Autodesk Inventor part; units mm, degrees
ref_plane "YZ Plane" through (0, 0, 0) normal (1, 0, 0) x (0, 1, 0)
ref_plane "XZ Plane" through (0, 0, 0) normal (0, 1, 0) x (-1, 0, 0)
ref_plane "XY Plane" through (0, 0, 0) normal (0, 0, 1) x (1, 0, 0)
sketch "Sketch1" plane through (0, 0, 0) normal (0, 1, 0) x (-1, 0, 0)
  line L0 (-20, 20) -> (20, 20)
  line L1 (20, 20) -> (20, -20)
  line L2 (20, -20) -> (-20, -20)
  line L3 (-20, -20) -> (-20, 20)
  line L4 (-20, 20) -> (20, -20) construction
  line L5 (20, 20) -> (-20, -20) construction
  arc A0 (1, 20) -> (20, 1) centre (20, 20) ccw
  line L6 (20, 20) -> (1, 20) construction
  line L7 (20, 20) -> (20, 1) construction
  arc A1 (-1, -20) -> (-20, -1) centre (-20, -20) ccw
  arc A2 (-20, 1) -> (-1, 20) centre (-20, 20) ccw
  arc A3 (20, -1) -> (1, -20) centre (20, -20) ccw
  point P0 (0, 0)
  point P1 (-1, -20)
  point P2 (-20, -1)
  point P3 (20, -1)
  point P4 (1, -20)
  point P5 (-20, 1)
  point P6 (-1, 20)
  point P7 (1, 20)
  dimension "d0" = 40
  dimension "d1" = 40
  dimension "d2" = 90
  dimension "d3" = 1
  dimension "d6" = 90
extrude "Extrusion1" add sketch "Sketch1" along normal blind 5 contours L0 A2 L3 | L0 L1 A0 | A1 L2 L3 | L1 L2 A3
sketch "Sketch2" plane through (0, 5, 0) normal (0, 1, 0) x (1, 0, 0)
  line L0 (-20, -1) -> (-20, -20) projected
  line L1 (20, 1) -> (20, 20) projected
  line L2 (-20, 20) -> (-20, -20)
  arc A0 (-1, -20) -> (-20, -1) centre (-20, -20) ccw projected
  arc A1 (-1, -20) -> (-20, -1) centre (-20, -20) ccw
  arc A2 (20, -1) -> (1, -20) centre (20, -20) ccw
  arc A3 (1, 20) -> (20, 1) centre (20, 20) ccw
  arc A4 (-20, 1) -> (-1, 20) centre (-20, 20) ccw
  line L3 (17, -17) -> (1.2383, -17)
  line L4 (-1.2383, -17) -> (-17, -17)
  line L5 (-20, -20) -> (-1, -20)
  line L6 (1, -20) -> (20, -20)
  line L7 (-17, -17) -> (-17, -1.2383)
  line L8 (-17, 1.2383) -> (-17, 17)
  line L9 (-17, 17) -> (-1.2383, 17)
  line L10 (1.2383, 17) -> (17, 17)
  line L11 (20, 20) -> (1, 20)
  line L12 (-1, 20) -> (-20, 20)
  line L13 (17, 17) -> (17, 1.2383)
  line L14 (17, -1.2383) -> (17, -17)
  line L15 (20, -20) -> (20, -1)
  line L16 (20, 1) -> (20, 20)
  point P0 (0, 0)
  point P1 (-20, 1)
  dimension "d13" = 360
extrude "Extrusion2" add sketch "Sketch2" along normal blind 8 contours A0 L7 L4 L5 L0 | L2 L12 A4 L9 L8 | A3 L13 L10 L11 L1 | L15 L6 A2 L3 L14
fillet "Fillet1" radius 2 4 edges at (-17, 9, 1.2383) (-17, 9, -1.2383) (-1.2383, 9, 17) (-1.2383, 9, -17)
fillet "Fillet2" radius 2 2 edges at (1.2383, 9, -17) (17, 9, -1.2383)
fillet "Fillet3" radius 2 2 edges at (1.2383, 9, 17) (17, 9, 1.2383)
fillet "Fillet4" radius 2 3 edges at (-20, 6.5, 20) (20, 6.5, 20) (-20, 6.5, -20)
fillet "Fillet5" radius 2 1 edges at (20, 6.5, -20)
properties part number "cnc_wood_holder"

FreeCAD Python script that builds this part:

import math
import FreeCAD as App
import Part
import Sketcher

V = App.Vector


def edges_at(feature, points):
    """Names of the edges that pass closest to the given points."""
    edges = feature.Shape.Edges
    near = lambda p: min(range(len(edges)), key=lambda i: edges[i].distToShape(Part.Vertex(*p))[0])
    return sorted({f"Edge{near(p) + 1}" for p in points})

doc = App.newDocument("Part")
body = doc.addObject("PartDesign::Body", "Body")
body.AllowCompound = True

# Sketch on XZ plane
sketch1 = doc.addObject("Sketcher::SketchObject", "Sketch")
body.addObject(sketch1)
sketch1.AttachmentSupport = (doc.XZ_Plane, [""])
sketch1.MapMode = "FlatFace"
sketch1.addGeometry([
    Part.LineSegment(V(1, 20, 0), V(20, 20, 0)),  # 0
    Part.LineSegment(V(20, 20, 0), V(20, 1, 0)),  # 1
    Part.ArcOfCircle(Part.Circle(V(20, 20, 0), V(0, 0, 1), 19), math.radians(180), math.radians(270)),  # 2
    Part.LineSegment(V(-20, 20, 0), V(-1, 20, 0)),  # 3
    Part.ArcOfCircle(Part.Circle(V(-20, 20, 0), V(0, 0, 1), 19), math.radians(-90), math.radians(0)),  # 4
    Part.LineSegment(V(-20, 1, 0), V(-20, 20, 0)),  # 5
    Part.ArcOfCircle(Part.Circle(V(20, -20, 0), V(0, 0, 1), 19), math.radians(90), math.radians(180)),  # 6
    Part.LineSegment(V(20, -1, 0), V(20, -20, 0)),  # 7
    Part.LineSegment(V(20, -20, 0), V(1, -20, 0)),  # 8
    Part.LineSegment(V(-20, -20, 0), V(-20, -1, 0)),  # 9
    Part.ArcOfCircle(Part.Circle(V(-20, -20, 0), V(0, 0, 1), 19), math.radians(0), math.radians(90)),  # 10
    Part.LineSegment(V(-1, -20, 0), V(-20, -20, 0)),  # 11
], False)
sketch1.addConstraint([
    Sketcher.Constraint("Coincident", 0, 2, 1, 1),
    Sketcher.Constraint("Coincident", 1, 2, 2, 2),
    Sketcher.Constraint("Coincident", 2, 1, 0, 1),
    Sketcher.Constraint("Coincident", 3, 2, 4, 2),
    Sketcher.Constraint("Coincident", 4, 1, 5, 1),
    Sketcher.Constraint("Coincident", 5, 2, 3, 1),
    Sketcher.Constraint("Coincident", 6, 1, 7, 1),
    Sketcher.Constraint("Coincident", 7, 2, 8, 1),
    Sketcher.Constraint("Coincident", 8, 2, 6, 2),
    Sketcher.Constraint("Coincident", 9, 2, 10, 2),
    Sketcher.Constraint("Coincident", 10, 1, 11, 1),
    Sketcher.Constraint("Coincident", 11, 2, 9, 1),
    Sketcher.Constraint("Horizontal", 0),
    Sketcher.Constraint("Vertical", 1),
    Sketcher.Constraint("Horizontal", 3),
    Sketcher.Constraint("Vertical", 5),
    Sketcher.Constraint("Vertical", 7),
    Sketcher.Constraint("Horizontal", 8),
    Sketcher.Constraint("Vertical", 9),
    Sketcher.Constraint("Horizontal", 11),
    Sketcher.Constraint("Coincident", 0, 2, 2, 3),
    Sketcher.Constraint("Coincident", 5, 2, 4, 3),
    Sketcher.Constraint("Coincident", 7, 2, 6, 3),
    Sketcher.Constraint("Coincident", 11, 2, 10, 3),
    Sketcher.Constraint("Equal", 2, 4),
    Sketcher.Constraint("Equal", 4, 6),
    Sketcher.Constraint("Equal", 6, 10),
    Sketcher.Constraint("Symmetric", 4, 3, 6, 3, -1, 1),
    Sketcher.Constraint("Symmetric", 2, 3, 10, 3, -1, 1),
    Sketcher.Constraint("Symmetric", 2, 3, 4, 3, -2),
    Sketcher.Constraint("DistanceY", -1, 1, 1, 2, 1.0),
    Sketcher.Constraint("DistanceX", -1, 1, 2, 1, 1.0),
    Sketcher.Constraint("Radius", 2, 19.0),
])
pad1 = doc.addObject("PartDesign::Pad", "Pad")
body.addObject(pad1)
pad1.Profile = sketch1
pad1.Length = 5
pad1.Reversed = True

# Sketch on XZ plane
sketch2 = doc.addObject("Sketcher::SketchObject", "Sketch001")
body.addObject(sketch2)
sketch2.AttachmentSupport = (doc.XZ_Plane, [""])
sketch2.MapMode = "FlatFace"
sketch2.AttachmentOffset = App.Placement(V(0, 0, -5), App.Rotation())
sketch2.addGeometry([
    Part.ArcOfCircle(Part.Circle(V(-20, 20, 0), V(0, 0, 1), 19), math.radians(-90), math.radians(-80.92)),  # 0
    Part.LineSegment(V(-20, 1, 0), V(-20, 20, 0)),  # 1
    Part.LineSegment(V(-20, 20, 0), V(-1, 20, 0)),  # 2
    Part.ArcOfCircle(Part.Circle(V(-20, 20, 0), V(0, 0, 1), 19), math.radians(-9.08), math.radians(0)),  # 3
    Part.LineSegment(V(-1.2, 17, 0), V(-17, 17, 0)),  # 4
    Part.LineSegment(V(-17, 17, 0), V(-17, 1.2, 0)),  # 5
    Part.LineSegment(V(-20, -20, 0), V(-20, -1, 0)),  # 6
    Part.ArcOfCircle(Part.Circle(V(-20, -20, 0), V(0, 0, 1), 19), math.radians(80.92), math.radians(90)),  # 7
    Part.LineSegment(V(-17, -1.2, 0), V(-17, -17, 0)),  # 8
    Part.LineSegment(V(-17, -17, 0), V(-1.2, -17, 0)),  # 9
    Part.ArcOfCircle(Part.Circle(V(-20, -20, 0), V(0, 0, 1), 19), math.radians(0), math.radians(9.08)),  # 10
    Part.LineSegment(V(-1, -20, 0), V(-20, -20, 0)),  # 11
    Part.ArcOfCircle(Part.Circle(V(20, -20, 0), V(0, 0, 1), 19), math.radians(90), math.radians(99.08)),  # 12
    Part.LineSegment(V(20, -1, 0), V(20, -20, 0)),  # 13
    Part.LineSegment(V(20, -20, 0), V(1, -20, 0)),  # 14
    Part.ArcOfCircle(Part.Circle(V(20, -20, 0), V(0, 0, 1), 19), math.radians(170.92), math.radians(180)),  # 15
    Part.LineSegment(V(1.2, -17, 0), V(17, -17, 0)),  # 16
    Part.LineSegment(V(17, -17, 0), V(17, -1.2, 0)),  # 17
    Part.LineSegment(V(20, 20, 0), V(20, 1, 0)),  # 18
    Part.ArcOfCircle(Part.Circle(V(20, 20, 0), V(0, 0, 1), 19), math.radians(-99.08), math.radians(-90)),  # 19
    Part.LineSegment(V(17, 1.2, 0), V(17, 17, 0)),  # 20
    Part.LineSegment(V(17, 17, 0), V(1.2, 17, 0)),  # 21
    Part.ArcOfCircle(Part.Circle(V(20, 20, 0), V(0, 0, 1), 19), math.radians(180), math.radians(189.08)),  # 22
    Part.LineSegment(V(1, 20, 0), V(20, 20, 0)),  # 23
], False)
sketch2.addConstraint([
    Sketcher.Constraint("Coincident", 0, 1, 1, 1),
    Sketcher.Constraint("Coincident", 1, 2, 2, 1),
    Sketcher.Constraint("Coincident", 2, 2, 3, 2),
    Sketcher.Constraint("Coincident", 3, 1, 4, 1),
    Sketcher.Constraint("Coincident", 4, 2, 5, 1),
    Sketcher.Constraint("Coincident", 5, 2, 0, 2),
    Sketcher.Constraint("Coincident", 6, 2, 7, 2),
    Sketcher.Constraint("Coincident", 7, 1, 8, 1),
    Sketcher.Constraint("Coincident", 8, 2, 9, 1),
    Sketcher.Constraint("Coincident", 9, 2, 10, 2),
    Sketcher.Constraint("Coincident", 10, 1, 11, 1),
    Sketcher.Constraint("Coincident", 11, 2, 6, 1),
    Sketcher.Constraint("Coincident", 12, 1, 13, 1),
    Sketcher.Constraint("Coincident", 13, 2, 14, 1),
    Sketcher.Constraint("Coincident", 14, 2, 15, 2),
    Sketcher.Constraint("Coincident", 15, 1, 16, 1),
    Sketcher.Constraint("Coincident", 16, 2, 17, 1),
    Sketcher.Constraint("Coincident", 17, 2, 12, 2),
    Sketcher.Constraint("Coincident", 18, 2, 19, 2),
    Sketcher.Constraint("Coincident", 19, 1, 20, 1),
    Sketcher.Constraint("Coincident", 20, 2, 21, 1),
    Sketcher.Constraint("Coincident", 21, 2, 22, 2),
    Sketcher.Constraint("Coincident", 22, 1, 23, 1),
    Sketcher.Constraint("Coincident", 23, 2, 18, 1),
    Sketcher.Constraint("Vertical", 1),
    Sketcher.Constraint("Horizontal", 2),
    Sketcher.Constraint("Horizontal", 4),
    Sketcher.Constraint("Vertical", 5),
    Sketcher.Constraint("Vertical", 6),
    Sketcher.Constraint("Vertical", 8),
    Sketcher.Constraint("Horizontal", 9),
    Sketcher.Constraint("Horizontal", 11),
    Sketcher.Constraint("Vertical", 13),
    Sketcher.Constraint("Horizontal", 14),
    Sketcher.Constraint("Horizontal", 16),
    Sketcher.Constraint("Vertical", 17),
    Sketcher.Constraint("Vertical", 18),
    Sketcher.Constraint("Vertical", 20),
    Sketcher.Constraint("Horizontal", 21),
    Sketcher.Constraint("Horizontal", 23),
    Sketcher.Constraint("Coincident", 3, 3, 0, 3),
    Sketcher.Constraint("Coincident", 10, 3, 7, 3),
    Sketcher.Constraint("Coincident", 15, 3, 12, 3),
    Sketcher.Constraint("Coincident", 22, 3, 19, 3),
    Sketcher.Constraint("Coincident", 1, 2, 0, 3),
    Sketcher.Constraint("Coincident", 11, 2, 7, 3),
    Sketcher.Constraint("Coincident", 13, 2, 12, 3),
    Sketcher.Constraint("Coincident", 23, 2, 19, 3),
    Sketcher.Constraint("Equal", 0, 3),
    Sketcher.Constraint("Equal", 3, 7),
    Sketcher.Constraint("Equal", 7, 10),
    Sketcher.Constraint("Equal", 10, 12),
    Sketcher.Constraint("Equal", 12, 15),
    Sketcher.Constraint("Equal", 15, 19),
    Sketcher.Constraint("Equal", 19, 22),
    Sketcher.Constraint("Symmetric", 0, 3, 12, 3, -1, 1),
    Sketcher.Constraint("Symmetric", 7, 3, 19, 3, -1, 1),
    Sketcher.Constraint("Symmetric", 4, 2, 16, 2, -1, 1),
    Sketcher.Constraint("Symmetric", 8, 2, 20, 2, -1, 1),
    Sketcher.Constraint("Symmetric", 7, 3, 12, 3, -2),
    Sketcher.Constraint("Symmetric", 8, 2, 16, 2, -2),
    Sketcher.Constraint("Equal", 21, 5),
    Sketcher.Constraint("Radius", 0, 19.0),
    Sketcher.Constraint("DistanceX", 0, 3, -1, 1, 20.0),
    Sketcher.Constraint("DistanceY", -1, 1, 0, 3, 20.0),
    Sketcher.Constraint("DistanceY", -1, 1, 3, 1, 17.0),
])
pad2 = doc.addObject("PartDesign::Pad", "Pad001")
body.addObject(pad2)
pad2.Profile = sketch2
pad2.Length = 8
pad2.Reversed = True
doc.recompute()

fillet = doc.addObject("PartDesign::Fillet", "Fillet")
body.addObject(fillet)
fillet.Base = (pad2, edges_at(pad2, [
    (-17, 9, 1.238),
    (-17, 9, -1.238),
    (-1.238, 9, 17),
    (-1.238, 9, -17),
]))
fillet.Radius = 2
doc.recompute()

fillet2 = doc.addObject("PartDesign::Fillet", "Fillet001")
body.addObject(fillet2)
fillet2.Base = (fillet, edges_at(fillet, [(1.238, 9, -17), (17, 9, -1.238)]))
fillet2.Radius = 2
doc.recompute()

fillet3 = doc.addObject("PartDesign::Fillet", "Fillet002")
body.addObject(fillet3)
fillet3.Base = (fillet2, edges_at(fillet2, [(1.238, 9, 17), (17, 9, 1.238)]))
fillet3.Radius = 2
doc.recompute()

fillet4 = doc.addObject("PartDesign::Fillet", "Fillet003")
body.addObject(fillet4)
fillet4.Base = (fillet3, edges_at(fillet3, [(-20, 6.5, 20), (20, 6.5, 20), (-20, 6.5, -20)]))
fillet4.Radius = 2
doc.recompute()

fillet5 = doc.addObject("PartDesign::Fillet", "Fillet004")
body.addObject(fillet5)
fillet5.Base = (fillet4, edges_at(fillet4, [(20, 6.5, -20)]))
fillet5.Radius = 2

doc.recompute()
